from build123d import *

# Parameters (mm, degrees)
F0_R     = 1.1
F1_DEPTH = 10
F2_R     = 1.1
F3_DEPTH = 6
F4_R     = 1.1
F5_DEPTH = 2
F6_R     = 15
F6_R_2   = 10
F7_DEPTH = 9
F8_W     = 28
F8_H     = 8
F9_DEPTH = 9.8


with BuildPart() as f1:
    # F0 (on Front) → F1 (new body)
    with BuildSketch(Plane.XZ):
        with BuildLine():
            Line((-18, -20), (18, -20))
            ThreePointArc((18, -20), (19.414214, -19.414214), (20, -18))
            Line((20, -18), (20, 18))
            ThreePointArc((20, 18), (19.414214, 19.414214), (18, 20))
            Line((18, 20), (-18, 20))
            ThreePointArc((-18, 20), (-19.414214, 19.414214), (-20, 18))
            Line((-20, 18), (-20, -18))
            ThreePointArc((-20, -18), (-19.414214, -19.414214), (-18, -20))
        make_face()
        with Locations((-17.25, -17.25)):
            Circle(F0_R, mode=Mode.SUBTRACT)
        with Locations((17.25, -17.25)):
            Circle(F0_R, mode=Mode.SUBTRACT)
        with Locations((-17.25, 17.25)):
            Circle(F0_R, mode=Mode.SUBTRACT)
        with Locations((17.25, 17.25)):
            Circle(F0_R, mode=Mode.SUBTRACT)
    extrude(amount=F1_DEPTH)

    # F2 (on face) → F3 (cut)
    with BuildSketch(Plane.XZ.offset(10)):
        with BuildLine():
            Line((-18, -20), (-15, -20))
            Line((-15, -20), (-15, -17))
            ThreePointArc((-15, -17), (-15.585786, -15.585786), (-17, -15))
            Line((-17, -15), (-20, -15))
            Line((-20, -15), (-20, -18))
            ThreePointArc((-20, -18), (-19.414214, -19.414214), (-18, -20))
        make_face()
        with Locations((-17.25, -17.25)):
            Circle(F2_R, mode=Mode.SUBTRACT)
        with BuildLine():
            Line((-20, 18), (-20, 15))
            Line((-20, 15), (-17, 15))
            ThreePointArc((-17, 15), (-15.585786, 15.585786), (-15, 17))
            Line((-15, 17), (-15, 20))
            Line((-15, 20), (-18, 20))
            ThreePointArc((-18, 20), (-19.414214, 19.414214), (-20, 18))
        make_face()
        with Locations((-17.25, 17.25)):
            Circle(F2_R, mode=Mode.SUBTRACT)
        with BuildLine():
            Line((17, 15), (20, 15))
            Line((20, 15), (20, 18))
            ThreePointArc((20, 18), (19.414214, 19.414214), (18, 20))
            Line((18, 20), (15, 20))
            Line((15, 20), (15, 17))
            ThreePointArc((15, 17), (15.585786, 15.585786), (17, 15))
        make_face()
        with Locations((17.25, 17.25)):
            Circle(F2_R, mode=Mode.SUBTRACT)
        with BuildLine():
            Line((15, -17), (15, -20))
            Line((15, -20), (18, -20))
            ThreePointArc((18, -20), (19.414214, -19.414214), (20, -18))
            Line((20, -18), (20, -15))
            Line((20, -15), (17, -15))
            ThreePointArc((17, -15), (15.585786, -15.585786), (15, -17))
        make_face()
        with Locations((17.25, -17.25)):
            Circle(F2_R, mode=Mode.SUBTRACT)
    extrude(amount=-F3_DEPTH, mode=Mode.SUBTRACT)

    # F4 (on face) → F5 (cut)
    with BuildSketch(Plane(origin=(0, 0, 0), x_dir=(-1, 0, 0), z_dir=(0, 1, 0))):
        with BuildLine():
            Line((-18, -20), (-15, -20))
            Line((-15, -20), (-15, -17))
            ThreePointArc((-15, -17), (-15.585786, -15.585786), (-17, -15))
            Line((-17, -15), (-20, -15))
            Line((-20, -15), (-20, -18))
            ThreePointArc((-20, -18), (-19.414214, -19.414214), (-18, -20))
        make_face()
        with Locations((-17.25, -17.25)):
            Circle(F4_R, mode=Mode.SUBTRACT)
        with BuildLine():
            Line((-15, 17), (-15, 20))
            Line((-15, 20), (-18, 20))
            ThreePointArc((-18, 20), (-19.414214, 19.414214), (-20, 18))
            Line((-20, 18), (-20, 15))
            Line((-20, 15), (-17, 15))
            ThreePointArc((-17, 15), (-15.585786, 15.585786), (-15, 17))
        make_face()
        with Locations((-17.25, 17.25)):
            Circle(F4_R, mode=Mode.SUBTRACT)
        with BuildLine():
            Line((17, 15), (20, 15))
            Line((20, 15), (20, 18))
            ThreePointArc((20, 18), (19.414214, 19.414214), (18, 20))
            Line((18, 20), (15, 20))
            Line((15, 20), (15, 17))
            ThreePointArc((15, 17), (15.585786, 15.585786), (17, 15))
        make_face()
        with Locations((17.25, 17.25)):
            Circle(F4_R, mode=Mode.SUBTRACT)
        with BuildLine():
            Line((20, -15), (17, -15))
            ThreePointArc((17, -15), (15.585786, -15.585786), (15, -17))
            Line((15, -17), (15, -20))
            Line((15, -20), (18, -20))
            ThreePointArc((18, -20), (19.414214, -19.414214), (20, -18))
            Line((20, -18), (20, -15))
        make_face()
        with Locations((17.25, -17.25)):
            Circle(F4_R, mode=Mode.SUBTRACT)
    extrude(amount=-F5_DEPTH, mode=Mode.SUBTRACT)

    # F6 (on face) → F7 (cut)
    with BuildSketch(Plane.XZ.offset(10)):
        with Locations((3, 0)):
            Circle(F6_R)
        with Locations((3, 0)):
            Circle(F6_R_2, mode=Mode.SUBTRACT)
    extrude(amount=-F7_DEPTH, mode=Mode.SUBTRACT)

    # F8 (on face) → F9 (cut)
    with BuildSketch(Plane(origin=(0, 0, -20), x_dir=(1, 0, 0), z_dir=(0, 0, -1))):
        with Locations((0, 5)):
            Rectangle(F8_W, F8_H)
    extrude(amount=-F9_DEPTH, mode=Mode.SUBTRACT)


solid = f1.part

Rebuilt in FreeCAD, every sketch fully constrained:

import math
import FreeCAD as App
import Part
import Sketcher
from FreeCAD import Vector


def add_polygon(sketch, points):
    """Adds a closed chain of lines whose ends are joined by coincident constraints."""
    first, n = sketch.GeometryCount, len(points)
    for a, b in zip(points, points[1:] + points[:1]):
        sketch.addGeometry(Part.LineSegment(App.Vector(*a, 0), App.Vector(*b, 0)), False)
    for i in range(n):
        sketch.addConstraint(Sketcher.Constraint("Coincident", first + i, 2, first + (i + 1) % n, 1))

doc = App.newDocument("Part")
body = doc.addObject("PartDesign::Body", "Body")

# Sketch on XZ plane
sketch1 = body.newObject("Sketcher::SketchObject", "Sketch")
sketch1.AttachmentSupport = (doc.getObject("XZ_Plane"), [""])
sketch1.MapMode = "FlatFace"
sketch1.addGeometry([
    Part.LineSegment(Vector(-18, -20, 0), Vector(18, -20, 0)),  # 0
    Part.ArcOfCircle(Part.Circle(Vector(18.000001, -18.000001, 0), Vector(0, 0, 1), 1.999999), math.radians(-90.000043), math.radians(0.000043)),  # 1
    Part.LineSegment(Vector(20, -18, 0), Vector(20, 18, 0)),  # 2
    Part.ArcOfCircle(Part.Circle(Vector(18.000001, 18.000001, 0), Vector(0, 0, 1), 1.999999), math.radians(-0.000043), math.radians(90.000043)),  # 3
    Part.LineSegment(Vector(18, 20, 0), Vector(-18, 20, 0)),  # 4
    Part.ArcOfCircle(Part.Circle(Vector(-18.000001, 18.000001, 0), Vector(0, 0, 1), 1.999999), math.radians(89.999957), math.radians(180.000043)),  # 5
    Part.LineSegment(Vector(-20, 18, 0), Vector(-20, -18, 0)),  # 6
    Part.ArcOfCircle(Part.Circle(Vector(-18.000001, -18.000001, 0), Vector(0, 0, 1), 1.999999), math.radians(179.999957), math.radians(270.000043)),  # 7
    Part.Circle(Vector(-17.25, -17.25, 0), Vector(0, 0, 1), 1.1),  # 8
    Part.Circle(Vector(17.25, -17.25, 0), Vector(0, 0, 1), 1.1),  # 9
    Part.Circle(Vector(-17.25, 17.25, 0), Vector(0, 0, 1), 1.1),  # 10
    Part.Circle(Vector(17.25, 17.25, 0), Vector(0, 0, 1), 1.1),  # 11
], False)
sketch1.addConstraint([
    Sketcher.Constraint("Tangent", 0, 2, 1, 1),
    Sketcher.Constraint("Tangent", 1, 2, 2, 1),
    Sketcher.Constraint("Tangent", 2, 2, 3, 1),
    Sketcher.Constraint("Tangent", 3, 2, 4, 1),
    Sketcher.Constraint("Tangent", 4, 2, 5, 1),
    Sketcher.Constraint("Tangent", 5, 2, 6, 1),
    Sketcher.Constraint("Tangent", 6, 2, 7, 1),
    Sketcher.Constraint("Tangent", 7, 2, 0, 1),
    Sketcher.Constraint("Horizontal", 0),
    Sketcher.Constraint("Vertical", 2),
    Sketcher.Constraint("Horizontal", 4),
    Sketcher.Constraint("Vertical", 6),
    Sketcher.Constraint("Equal", 1, 3),
    Sketcher.Constraint("Equal", 3, 5),
    Sketcher.Constraint("Equal", 5, 7),
    Sketcher.Constraint("Equal", 8, 9),
    Sketcher.Constraint("Equal", 9, 10),
    Sketcher.Constraint("Equal", 10, 11),
    Sketcher.Constraint("Symmetric", 1, 3, 5, 3, -1, 1),
    Sketcher.Constraint("Symmetric", 9, 3, 10, 3, -1, 1),
    Sketcher.Constraint("Symmetric", 8, 3, 11, 3, -1, 1),
    Sketcher.Constraint("Symmetric", 8, 3, 9, 3, -2),
    Sketcher.Constraint("Equal", 4, 2),
    Sketcher.Constraint("Radius", 1, 1.999999),
    Sketcher.Constraint("Diameter", 8, 2.2),
    Sketcher.Constraint("DistanceX", 0, 1, 0, 2, 36.0),
    Sketcher.Constraint("DistanceX", 8, 3, 9, 3, 34.5),
    Sketcher.Constraint("DistanceY", 8, 3, 10, 3, 34.5),
])
pad1 = body.newObject("PartDesign::Pad", "Pad")
pad1.Profile = sketch1
pad1.Length = 10

# Sketch on XZ plane
sketch2 = body.newObject("Sketcher::SketchObject", "Sketch001")
sketch2.AttachmentSupport = (doc.getObject("XZ_Plane"), [""])
sketch2.MapMode = "FlatFace"
sketch2.AttachmentOffset = App.Placement(Vector(0, 0, 10), App.Rotation())
sketch2.addGeometry([
    Part.LineSegment(Vector(-18, -20, 0), Vector(-15, -20, 0)),  # 0
    Part.LineSegment(Vector(-15, -20, 0), Vector(-15, -17, 0)),  # 1
    Part.ArcOfCircle(Part.Circle(Vector(-16.999999, -16.999999, 0), Vector(0, 0, 1), 1.999999), math.radians(-0.000043), math.radians(90.000043)),  # 2
    Part.LineSegment(Vector(-17, -15, 0), Vector(-20, -15, 0)),  # 3
    Part.LineSegment(Vector(-20, -15, 0), Vector(-20, -18, 0)),  # 4
    Part.ArcOfCircle(Part.Circle(Vector(-18.000001, -18.000001, 0), Vector(0, 0, 1), 1.999999), math.radians(179.999957), math.radians(270.000043)),  # 5
    Part.Circle(Vector(-17.25, -17.25, 0), Vector(0, 0, 1), 1.1),  # 6
    Part.LineSegment(Vector(-20, 18, 0), Vector(-20, 15, 0)),  # 7
    Part.LineSegment(Vector(-20, 15, 0), Vector(-17, 15, 0)),  # 8
    Part.ArcOfCircle(Part.Circle(Vector(-16.999999, 16.999999, 0), Vector(0, 0, 1), 1.999999), math.radians(-90.000043), math.radians(0.000043)),  # 9
    Part.LineSegment(Vector(-15, 17, 0), Vector(-15, 20, 0)),  # 10
    Part.LineSegment(Vector(-15, 20, 0), Vector(-18, 20, 0)),  # 11
    Part.ArcOfCircle(Part.Circle(Vector(-18.000001, 18.000001, 0), Vector(0, 0, 1), 1.999999), math.radians(89.999957), math.radians(180.000043)),  # 12
    Part.Circle(Vector(-17.25, 17.25, 0), Vector(0, 0, 1), 1.1),  # 13
    Part.LineSegment(Vector(17, 15, 0), Vector(20, 15, 0)),  # 14
    Part.LineSegment(Vector(20, 15, 0), Vector(20, 18, 0)),  # 15
    Part.ArcOfCircle(Part.Circle(Vector(18.000001, 18.000001, 0), Vector(0, 0, 1), 1.999999), math.radians(-0.000043), math.radians(90.000043)),  # 16
    Part.LineSegment(Vector(18, 20, 0), Vector(15, 20, 0)),  # 17
    Part.LineSegment(Vector(15, 20, 0), Vector(15, 17, 0)),  # 18
    Part.ArcOfCircle(Part.Circle(Vector(16.999999, 16.999999, 0), Vector(0, 0, 1), 1.999999), math.radians(179.999957), math.radians(270.000043)),  # 19
    Part.Circle(Vector(17.25, 17.25, 0), Vector(0, 0, 1), 1.1),  # 20
    Part.LineSegment(Vector(15, -17, 0), Vector(15, -20, 0)),  # 21
    Part.LineSegment(Vector(15, -20, 0), Vector(18, -20, 0)),  # 22
    Part.ArcOfCircle(Part.Circle(Vector(18.000001, -18.000001, 0), Vector(0, 0, 1), 1.999999), math.radians(-90.000043), math.radians(0.000043)),  # 23
    Part.LineSegment(Vector(20, -18, 0), Vector(20, -15, 0)),  # 24
    Part.LineSegment(Vector(20, -15, 0), Vector(17, -15, 0)),  # 25
    Part.ArcOfCircle(Part.Circle(Vector(16.999999, -16.999999, 0), Vector(0, 0, 1), 1.999999), math.radians(89.999957), math.radians(180.000043)),  # 26
    Part.Circle(Vector(17.25, -17.25, 0), Vector(0, 0, 1), 1.1),  # 27
], False)
sketch2.addConstraint([
    Sketcher.Constraint("Coincident", 0, 2, 1, 1),
    Sketcher.Constraint("Tangent", 1, 2, 2, 1),
    Sketcher.Constraint("Tangent", 2, 2, 3, 1),
    Sketcher.Constraint("Coincident", 3, 2, 4, 1),
    Sketcher.Constraint("Tangent", 4, 2, 5, 1),
    Sketcher.Constraint("Tangent", 5, 2, 0, 1),
    Sketcher.Constraint("Coincident", 7, 2, 8, 1),
    Sketcher.Constraint("Tangent", 8, 2, 9, 1),
    Sketcher.Constraint("Tangent", 9, 2, 10, 1),
    Sketcher.Constraint("Coincident", 10, 2, 11, 1),
    Sketcher.Constraint("Tangent", 11, 2, 12, 1),
    Sketcher.Constraint("Tangent", 12, 2, 7, 1),
    Sketcher.Constraint("Coincident", 14, 2, 15, 1),
    Sketcher.Constraint("Tangent", 15, 2, 16, 1),
    Sketcher.Constraint("Tangent", 16, 2, 17, 1),
    Sketcher.Constraint("Coincident", 17, 2, 18, 1),
    Sketcher.Constraint("Tangent", 18, 2, 19, 1),
    Sketcher.Constraint("Tangent", 19, 2, 14, 1),
    Sketcher.Constraint("Coincident", 21, 2, 22, 1),
    Sketcher.Constraint("Tangent", 22, 2, 23, 1),
    Sketcher.Constraint("Tangent", 23, 2, 24, 1),
    Sketcher.Constraint("Coincident", 24, 2, 25, 1),
    Sketcher.Constraint("Tangent", 25, 2, 26, 1),
    Sketcher.Constraint("Tangent", 26, 2, 21, 1),
    Sketcher.Constraint("Horizontal", 0),
    Sketcher.Constraint("Vertical", 1),
    Sketcher.Constraint("Horizontal", 3),
    Sketcher.Constraint("Vertical", 4),
    Sketcher.Constraint("Vertical", 7),
    Sketcher.Constraint("Horizontal", 8),
    Sketcher.Constraint("Vertical", 10),
    Sketcher.Constraint("Horizontal", 11),
    Sketcher.Constraint("Horizontal", 14),
    Sketcher.Constraint("Vertical", 15),
    Sketcher.Constraint("Horizontal", 17),
    Sketcher.Constraint("Vertical", 18),
    Sketcher.Constraint("Vertical", 21),
    Sketcher.Constraint("Horizontal", 22),
    Sketcher.Constraint("Vertical", 24),
    Sketcher.Constraint("Horizontal", 25),
    Sketcher.Constraint("Equal", 2, 5),
    Sketcher.Constraint("Equal", 5, 9),
    Sketcher.Constraint("Equal", 9, 12),
    Sketcher.Constraint("Equal", 6, 13),
    Sketcher.Constraint("Equal", 12, 16),
    Sketcher.Constraint("Equal", 16, 19),
    Sketcher.Constraint("Equal", 13, 20),
    Sketcher.Constraint("Equal", 19, 23),
    Sketcher.Constraint("Equal", 23, 26),
    Sketcher.Constraint("Equal", 20, 27),
    Sketcher.Constraint("Symmetric", 5, 3, 16, 3, -1, 1),
    Sketcher.Constraint("Symmetric", 2, 3, 19, 3, -1, 1),
    Sketcher.Constraint("Symmetric", 6, 3, 20, 3, -1, 1),
    Sketcher.Constraint("Symmetric", 12, 3, 23, 3, -1, 1),
    Sketcher.Constraint("Symmetric", 9, 3, 26, 3, -1, 1),
    Sketcher.Constraint("Symmetric", 13, 3, 27, 3, -1, 1),
    Sketcher.Constraint("Symmetric", 12, 3, 16, 3, -2),
    Sketcher.Constraint("Symmetric", 9, 3, 19, 3, -2),
    Sketcher.Constraint("Symmetric", 13, 3, 20, 3, -2),
    Sketcher.Constraint("Equal", 25, 1),
    Sketcher.Constraint("Radius", 2, 1.999999),
    Sketcher.Constraint("Diameter", 6, 2.2),
    Sketcher.Constraint("DistanceX", 0, 1, 0, 2, 3.0),
    Sketcher.Constraint("DistanceX", 2, 3, -1, 1, 16.999999),
    Sketcher.Constraint("DistanceY", 2, 3, -1, 1, 16.999999),
    Sketcher.Constraint("DistanceY", 6, 3, 13, 3, 34.5),
    Sketcher.Constraint("DistanceX", 13, 3, 20, 3, 34.5),
])
pocket1 = body.newObject("PartDesign::Pocket", "Pocket")
pocket1.Profile = sketch2
pocket1.Length = 6

# Sketch on XZ plane
sketch3 = body.newObject("Sketcher::SketchObject", "Sketch002")
sketch3.AttachmentSupport = (doc.getObject("XZ_Plane"), [""])
sketch3.MapMode = "FlatFace"
sketch3.addGeometry([
    Part.LineSegment(Vector(18, -20, 0), Vector(15, -20, 0)),  # 0
    Part.LineSegment(Vector(15, -20, 0), Vector(15, -17, 0)),  # 1
    Part.ArcOfCircle(Part.Circle(Vector(16.999999, -16.999999, 0), Vector(0, 0, 1), 1.999999), math.radians(89.999957), math.radians(180.000043)),  # 2
    Part.LineSegment(Vector(17, -15, 0), Vector(20, -15, 0)),  # 3
    Part.LineSegment(Vector(20, -15, 0), Vector(20, -18, 0)),  # 4
    Part.ArcOfCircle(Part.Circle(Vector(18.000001, -18.000001, 0), Vector(0, 0, 1), 1.999999), math.radians(-90.000043), math.radians(0.000043)),  # 5
    Part.Circle(Vector(17.25, -17.25, 0), Vector(0, 0, 1), 1.1),  # 6
    Part.LineSegment(Vector(15, 17, 0), Vector(15, 20, 0)),  # 7
    Part.LineSegment(Vector(15, 20, 0), Vector(18, 20, 0)),  # 8
    Part.ArcOfCircle(Part.Circle(Vector(18.000001, 18.000001, 0), Vector(0, 0, 1), 1.999999), math.radians(-0.000043), math.radians(90.000043)),  # 9
    Part.LineSegment(Vector(20, 18, 0), Vector(20, 15, 0)),  # 10
    Part.LineSegment(Vector(20, 15, 0), Vector(17, 15, 0)),  # 11
    Part.ArcOfCircle(Part.Circle(Vector(16.999999, 16.999999, 0), Vector(0, 0, 1), 1.999999), math.radians(179.999957), math.radians(270.000043)),  # 12
    Part.Circle(Vector(17.25, 17.25, 0), Vector(0, 0, 1), 1.1),  # 13
    Part.LineSegment(Vector(-17, 15, 0), Vector(-20, 15, 0)),  # 14
    Part.LineSegment(Vector(-20, 15, 0), Vector(-20, 18, 0)),  # 15
    Part.ArcOfCircle(Part.Circle(Vector(-18.000001, 18.000001, 0), Vector(0, 0, 1), 1.999999), math.radians(89.999957), math.radians(180.000043)),  # 16
    Part.LineSegment(Vector(-18, 20, 0), Vector(-15, 20, 0)),  # 17
    Part.LineSegment(Vector(-15, 20, 0), Vector(-15, 17, 0)),  # 18
    Part.ArcOfCircle(Part.Circle(Vector(-16.999999, 16.999999, 0), Vector(0, 0, 1), 1.999999), math.radians(-90.000043), math.radians(0.000043)),  # 19
    Part.Circle(Vector(-17.25, 17.25, 0), Vector(0, 0, 1), 1.1),  # 20
    Part.LineSegment(Vector(-20, -15, 0), Vector(-17, -15, 0)),  # 21
    Part.ArcOfCircle(Part.Circle(Vector(-16.999999, -16.999999, 0), Vector(0, 0, 1), 1.999999), math.radians(-0.000043), math.radians(90.000043)),  # 22
    Part.LineSegment(Vector(-15, -17, 0), Vector(-15, -20, 0)),  # 23
    Part.LineSegment(Vector(-15, -20, 0), Vector(-18, -20, 0)),  # 24
    Part.ArcOfCircle(Part.Circle(Vector(-18.000001, -18.000001, 0), Vector(0, 0, 1), 1.999999), math.radians(179.999957), math.radians(270.000043)),  # 25
    Part.LineSegment(Vector(-20, -18, 0), Vector(-20, -15, 0)),  # 26
    Part.Circle(Vector(-17.25, -17.25, 0), Vector(0, 0, 1), 1.1),  # 27
], False)
sketch3.addConstraint([
    Sketcher.Constraint("Coincident", 0, 2, 1, 1),
    Sketcher.Constraint("Tangent", 1, 2, 2, 2),
    Sketcher.Constraint("Tangent", 2, 1, 3, 1),
    Sketcher.Constraint("Coincident", 3, 2, 4, 1),
    Sketcher.Constraint("Tangent", 4, 2, 5, 2),
    Sketcher.Constraint("Tangent", 5, 1, 0, 1),
    Sketcher.Constraint("Coincident", 7, 2, 8, 1),
    Sketcher.Constraint("Tangent", 8, 2, 9, 2),
    Sketcher.Constraint("Tangent", 9, 1, 10, 1),
    Sketcher.Constraint("Coincident", 10, 2, 11, 1),
    Sketcher.Constraint("Tangent", 11, 2, 12, 2),
    Sketcher.Constraint("Tangent", 12, 1, 7, 1),
    Sketcher.Constraint("Coincident", 14, 2, 15, 1),
    Sketcher.Constraint("Tangent", 15, 2, 16, 2),
    Sketcher.Constraint("Tangent", 16, 1, 17, 1),
    Sketcher.Constraint("Coincident", 17, 2, 18, 1),
    Sketcher.Constraint("Tangent", 18, 2, 19, 2),
    Sketcher.Constraint("Tangent", 19, 1, 14, 1),
    Sketcher.Constraint("Tangent", 21, 2, 22, 2),
    Sketcher.Constraint("Tangent", 22, 1, 23, 1),
    Sketcher.Constraint("Coincident", 23, 2, 24, 1),
    Sketcher.Constraint("Tangent", 24, 2, 25, 2),
    Sketcher.Constraint("Tangent", 25, 1, 26, 1),
    Sketcher.Constraint("Coincident", 26, 2, 21, 1),
    Sketcher.Constraint("Horizontal", 0),
    Sketcher.Constraint("Vertical", 1),
    Sketcher.Constraint("Horizontal", 3),
    Sketcher.Constraint("Vertical", 4),
    Sketcher.Constraint("Vertical", 7),
    Sketcher.Constraint("Horizontal", 8),
    Sketcher.Constraint("Vertical", 10),
    Sketcher.Constraint("Horizontal", 11),
    Sketcher.Constraint("Horizontal", 14),
    Sketcher.Constraint("Vertical", 15),
    Sketcher.Constraint("Horizontal", 17),
    Sketcher.Constraint("Vertical", 18),
    Sketcher.Constraint("Horizontal", 21),
    Sketcher.Constraint("Vertical", 23),
    Sketcher.Constraint("Horizontal", 24),
    Sketcher.Constraint("Vertical", 26),
    Sketcher.Constraint("Equal", 2, 5),
    Sketcher.Constraint("Equal", 5, 9),
    Sketcher.Constraint("Equal", 9, 12),
    Sketcher.Constraint("Equal", 6, 13),
    Sketcher.Constraint("Equal", 12, 16),
    Sketcher.Constraint("Equal", 16, 19),
    Sketcher.Constraint("Equal", 13, 20),
    Sketcher.Constraint("Equal", 19, 22),
    Sketcher.Constraint("Equal", 22, 25),
    Sketcher.Constraint("Equal", 20, 27),
    Sketcher.Constraint("Symmetric", 5, 3, 16, 3, -1, 1),
    Sketcher.Constraint("Symmetric", 2, 3, 19, 3, -1, 1),
    Sketcher.Constraint("Symmetric", 6, 3, 20, 3, -1, 1),
    Sketcher.Constraint("Symmetric", 12, 3, 22, 3, -1, 1),
    Sketcher.Constraint("Symmetric", 9, 3, 25, 3, -1, 1),
    Sketcher.Constraint("Symmetric", 13, 3, 27, 3, -1, 1),
    Sketcher.Constraint("Symmetric", 9, 3, 16, 3, -2),
    Sketcher.Constraint("Symmetric", 12, 3, 19, 3, -2),
    Sketcher.Constraint("Symmetric", 13, 3, 20, 3, -2),
    Sketcher.Constraint("Equal", 24, 1),
    Sketcher.Constraint("Radius", 2, 1.999999),
    Sketcher.Constraint("Diameter", 6, 2.2),
    Sketcher.Constraint("DistanceX", 0, 2, 0, 1, 3.0),
    Sketcher.Constraint("DistanceX", -1, 1, 2, 3, 16.999999),
    Sketcher.Constraint("DistanceY", 2, 3, -1, 1, 16.999999),
    Sketcher.Constraint("DistanceY", 6, 3, 13, 3, 34.5),
    Sketcher.Constraint("DistanceX", 20, 3, 13, 3, 34.5),
])
pocket2 = body.newObject("PartDesign::Pocket", "Pocket001")
pocket2.Profile = sketch3
pocket2.Length = 2
pocket2.Reversed = True

# Sketch on XZ plane
sketch4 = body.newObject("Sketcher::SketchObject", "Sketch003")
sketch4.AttachmentSupport = (doc.getObject("XZ_Plane"), [""])
sketch4.MapMode = "FlatFace"
sketch4.AttachmentOffset = App.Placement(Vector(0, 0, 10), App.Rotation())
sketch4.addGeometry([
    Part.Circle(Vector(3, 0, 0), Vector(0, 0, 1), 15),
    Part.Circle(Vector(3, 0, 0), Vector(0, 0, 1), 10),
], False)
sketch4.addConstraint([
    Sketcher.Constraint("Coincident", 1, 3, 0, 3),
    Sketcher.Constraint("PointOnObject", 0, 3, -1),
    Sketcher.Constraint("Diameter", 0, 30.0),
    Sketcher.Constraint("Diameter", 1, 20.0),
    Sketcher.Constraint("DistanceX", -1, 1, 0, 3, 3.0),
])
pocket3 = body.newObject("PartDesign::Pocket", "Pocket002")
pocket3.Profile = sketch4
pocket3.Length = 9

# Sketch on XY plane
sketch5 = body.newObject("Sketcher::SketchObject", "Sketch004")
sketch5.AttachmentSupport = (doc.getObject("XY_Plane"), [""])
sketch5.MapMode = "FlatFace"
sketch5.AttachmentOffset = App.Placement(Vector(0, 0, -20), App.Rotation())
add_polygon(sketch5, [(-14, -9), (-14, -1), (14, -1), (14, -9)])  # lines 0-3
sketch5.addConstraint([
    Sketcher.Constraint("Vertical", 0),
    Sketcher.Constraint("Horizontal", 1),
    Sketcher.Constraint("Vertical", 2),
    Sketcher.Constraint("Horizontal", 3),
    Sketcher.Constraint("DistanceX", 1, 1, 1, 2, 28.0),
    Sketcher.Constraint("DistanceY", 0, 1, 0, 2, 8.0),
    Sketcher.Constraint("DistanceX", 0, 2, -1, 1, 14.0),
    Sketcher.Constraint("DistanceY", 0, 2, -1, 1, 1.0),
])
pocket4 = body.newObject("PartDesign::Pocket", "Pocket003")
pocket4.Profile = sketch5
pocket4.Length = 9.8
pocket4.Reversed = True

doc.recompute()
